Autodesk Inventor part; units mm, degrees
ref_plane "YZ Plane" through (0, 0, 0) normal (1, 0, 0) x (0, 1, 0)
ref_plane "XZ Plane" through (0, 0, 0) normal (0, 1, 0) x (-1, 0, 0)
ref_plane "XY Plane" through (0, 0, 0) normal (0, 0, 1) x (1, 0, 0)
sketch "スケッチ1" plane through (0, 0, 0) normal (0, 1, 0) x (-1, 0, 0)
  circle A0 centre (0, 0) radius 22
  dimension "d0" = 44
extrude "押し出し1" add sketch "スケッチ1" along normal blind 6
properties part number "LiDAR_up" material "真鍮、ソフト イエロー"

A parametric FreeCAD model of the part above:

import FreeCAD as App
import Part
import Sketcher

doc = App.newDocument("Part")
body = doc.addObject("PartDesign::Body", "Body")

# Sketch on XZ plane
sketch1 = body.newObject("Sketcher::SketchObject", "Sketch")
sketch1.AttachmentSupport = (doc.getObject("XZ_Plane"), [""])
sketch1.MapMode = "FlatFace"
sketch1.addGeometry(Part.Circle(App.Vector(0, 0, 0), App.Vector(0, 0, 1), 22), False)
sketch1.addConstraint([
    Sketcher.Constraint("Coincident", 0, 3, -1, 1),
    Sketcher.Constraint("Diameter", 0, 44.0),
])
pad1 = body.newObject("PartDesign::Pad", "Pad")
pad1.Profile = sketch1
pad1.Length = 6
pad1.Reversed = True

doc.recompute()
